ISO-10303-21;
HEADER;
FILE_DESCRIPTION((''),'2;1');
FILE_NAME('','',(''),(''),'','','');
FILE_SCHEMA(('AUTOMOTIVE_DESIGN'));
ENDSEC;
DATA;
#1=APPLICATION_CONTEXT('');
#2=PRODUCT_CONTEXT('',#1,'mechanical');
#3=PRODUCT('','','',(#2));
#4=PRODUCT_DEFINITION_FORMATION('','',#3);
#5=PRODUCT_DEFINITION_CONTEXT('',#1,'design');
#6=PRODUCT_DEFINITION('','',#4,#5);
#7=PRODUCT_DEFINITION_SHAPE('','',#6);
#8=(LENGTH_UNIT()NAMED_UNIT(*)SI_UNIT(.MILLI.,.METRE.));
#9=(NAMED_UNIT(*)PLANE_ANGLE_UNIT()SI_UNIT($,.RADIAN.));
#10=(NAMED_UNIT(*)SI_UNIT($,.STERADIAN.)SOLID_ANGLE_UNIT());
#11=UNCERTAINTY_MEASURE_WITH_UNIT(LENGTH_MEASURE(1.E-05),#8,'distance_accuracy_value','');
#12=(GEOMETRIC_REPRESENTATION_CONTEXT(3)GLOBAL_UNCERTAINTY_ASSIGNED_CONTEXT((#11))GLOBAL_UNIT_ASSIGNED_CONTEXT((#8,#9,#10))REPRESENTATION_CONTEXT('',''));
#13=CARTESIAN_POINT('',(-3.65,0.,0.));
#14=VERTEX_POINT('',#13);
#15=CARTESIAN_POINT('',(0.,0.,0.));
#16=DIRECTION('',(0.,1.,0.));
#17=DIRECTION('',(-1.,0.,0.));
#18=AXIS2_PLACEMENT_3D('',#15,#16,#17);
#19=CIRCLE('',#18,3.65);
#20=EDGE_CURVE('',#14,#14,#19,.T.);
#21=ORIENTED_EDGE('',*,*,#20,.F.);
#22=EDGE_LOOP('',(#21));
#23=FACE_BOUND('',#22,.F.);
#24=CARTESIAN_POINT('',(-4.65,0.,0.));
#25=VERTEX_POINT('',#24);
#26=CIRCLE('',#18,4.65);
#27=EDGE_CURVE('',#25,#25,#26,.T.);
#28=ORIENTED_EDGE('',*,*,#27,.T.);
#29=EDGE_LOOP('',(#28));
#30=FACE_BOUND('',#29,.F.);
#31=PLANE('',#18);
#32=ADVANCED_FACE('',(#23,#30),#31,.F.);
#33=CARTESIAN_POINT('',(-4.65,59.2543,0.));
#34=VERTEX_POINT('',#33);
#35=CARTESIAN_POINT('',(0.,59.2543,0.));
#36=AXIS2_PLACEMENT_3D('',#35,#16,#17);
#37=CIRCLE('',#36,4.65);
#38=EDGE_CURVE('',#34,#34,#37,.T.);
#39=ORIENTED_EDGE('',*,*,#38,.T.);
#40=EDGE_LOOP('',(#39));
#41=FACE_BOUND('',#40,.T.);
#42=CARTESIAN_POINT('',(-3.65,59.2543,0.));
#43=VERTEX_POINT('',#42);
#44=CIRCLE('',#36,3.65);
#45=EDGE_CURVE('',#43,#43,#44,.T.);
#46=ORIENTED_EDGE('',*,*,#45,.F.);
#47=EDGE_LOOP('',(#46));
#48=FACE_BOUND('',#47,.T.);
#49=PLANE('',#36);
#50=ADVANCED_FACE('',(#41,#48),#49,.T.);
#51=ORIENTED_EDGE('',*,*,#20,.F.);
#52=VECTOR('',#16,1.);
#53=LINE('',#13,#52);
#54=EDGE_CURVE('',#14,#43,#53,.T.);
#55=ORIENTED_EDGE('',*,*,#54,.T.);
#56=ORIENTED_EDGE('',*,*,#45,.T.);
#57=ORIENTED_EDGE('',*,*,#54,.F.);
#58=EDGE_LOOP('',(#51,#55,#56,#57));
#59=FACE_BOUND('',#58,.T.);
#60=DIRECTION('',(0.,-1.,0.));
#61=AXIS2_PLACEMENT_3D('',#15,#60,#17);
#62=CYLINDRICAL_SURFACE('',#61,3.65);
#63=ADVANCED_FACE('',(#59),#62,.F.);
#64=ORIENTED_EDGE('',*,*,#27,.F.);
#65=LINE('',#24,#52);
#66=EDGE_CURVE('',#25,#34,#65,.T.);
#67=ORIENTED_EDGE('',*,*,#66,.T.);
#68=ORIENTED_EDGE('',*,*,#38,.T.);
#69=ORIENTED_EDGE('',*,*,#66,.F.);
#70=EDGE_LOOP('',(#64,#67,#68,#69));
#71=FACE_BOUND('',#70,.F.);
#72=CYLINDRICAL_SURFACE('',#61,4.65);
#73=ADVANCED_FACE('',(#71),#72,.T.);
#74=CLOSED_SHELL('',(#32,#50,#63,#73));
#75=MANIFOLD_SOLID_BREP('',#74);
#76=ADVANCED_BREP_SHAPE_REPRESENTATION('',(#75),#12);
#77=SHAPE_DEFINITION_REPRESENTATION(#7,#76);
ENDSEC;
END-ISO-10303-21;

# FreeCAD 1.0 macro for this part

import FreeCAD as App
import Part
import Sketcher
Q = App.Units.Quantity

doc = App.newDocument("Part")
body = doc.addObject("PartDesign::Body", "Body")

sketch1 = doc.addObject("Sketcher::SketchObject", "Sketch")
body.addObject(sketch1)
sketch1.AttachmentSupport = (doc.XZ_Plane, [""])
sketch1.MapMode = "FlatFace"
sketch1.addGeometry([
    Part.Circle(App.Vector(0, 0, 0), App.Vector(0, 0, 1), 4.7),
    Part.Circle(App.Vector(0, 0, 0), App.Vector(0, 0, 1), 3.6),
], False)
sketch1.addConstraint([
    Sketcher.Constraint("Coincident", 0, 3, -1, 1),
    Sketcher.Constraint("Coincident", 1, 3, -1, 1),
    Sketcher.Constraint("Diameter", 0, Q("9.3 mm")),
    Sketcher.Constraint("Diameter", 1, Q("7.3 mm")),
])
pad1 = doc.addObject("PartDesign::Pad", "Pad")
body.addObject(pad1)
pad1.Profile = sketch1
pad1.Length = 59.2543
pad1.Reversed = True

doc.recompute()
